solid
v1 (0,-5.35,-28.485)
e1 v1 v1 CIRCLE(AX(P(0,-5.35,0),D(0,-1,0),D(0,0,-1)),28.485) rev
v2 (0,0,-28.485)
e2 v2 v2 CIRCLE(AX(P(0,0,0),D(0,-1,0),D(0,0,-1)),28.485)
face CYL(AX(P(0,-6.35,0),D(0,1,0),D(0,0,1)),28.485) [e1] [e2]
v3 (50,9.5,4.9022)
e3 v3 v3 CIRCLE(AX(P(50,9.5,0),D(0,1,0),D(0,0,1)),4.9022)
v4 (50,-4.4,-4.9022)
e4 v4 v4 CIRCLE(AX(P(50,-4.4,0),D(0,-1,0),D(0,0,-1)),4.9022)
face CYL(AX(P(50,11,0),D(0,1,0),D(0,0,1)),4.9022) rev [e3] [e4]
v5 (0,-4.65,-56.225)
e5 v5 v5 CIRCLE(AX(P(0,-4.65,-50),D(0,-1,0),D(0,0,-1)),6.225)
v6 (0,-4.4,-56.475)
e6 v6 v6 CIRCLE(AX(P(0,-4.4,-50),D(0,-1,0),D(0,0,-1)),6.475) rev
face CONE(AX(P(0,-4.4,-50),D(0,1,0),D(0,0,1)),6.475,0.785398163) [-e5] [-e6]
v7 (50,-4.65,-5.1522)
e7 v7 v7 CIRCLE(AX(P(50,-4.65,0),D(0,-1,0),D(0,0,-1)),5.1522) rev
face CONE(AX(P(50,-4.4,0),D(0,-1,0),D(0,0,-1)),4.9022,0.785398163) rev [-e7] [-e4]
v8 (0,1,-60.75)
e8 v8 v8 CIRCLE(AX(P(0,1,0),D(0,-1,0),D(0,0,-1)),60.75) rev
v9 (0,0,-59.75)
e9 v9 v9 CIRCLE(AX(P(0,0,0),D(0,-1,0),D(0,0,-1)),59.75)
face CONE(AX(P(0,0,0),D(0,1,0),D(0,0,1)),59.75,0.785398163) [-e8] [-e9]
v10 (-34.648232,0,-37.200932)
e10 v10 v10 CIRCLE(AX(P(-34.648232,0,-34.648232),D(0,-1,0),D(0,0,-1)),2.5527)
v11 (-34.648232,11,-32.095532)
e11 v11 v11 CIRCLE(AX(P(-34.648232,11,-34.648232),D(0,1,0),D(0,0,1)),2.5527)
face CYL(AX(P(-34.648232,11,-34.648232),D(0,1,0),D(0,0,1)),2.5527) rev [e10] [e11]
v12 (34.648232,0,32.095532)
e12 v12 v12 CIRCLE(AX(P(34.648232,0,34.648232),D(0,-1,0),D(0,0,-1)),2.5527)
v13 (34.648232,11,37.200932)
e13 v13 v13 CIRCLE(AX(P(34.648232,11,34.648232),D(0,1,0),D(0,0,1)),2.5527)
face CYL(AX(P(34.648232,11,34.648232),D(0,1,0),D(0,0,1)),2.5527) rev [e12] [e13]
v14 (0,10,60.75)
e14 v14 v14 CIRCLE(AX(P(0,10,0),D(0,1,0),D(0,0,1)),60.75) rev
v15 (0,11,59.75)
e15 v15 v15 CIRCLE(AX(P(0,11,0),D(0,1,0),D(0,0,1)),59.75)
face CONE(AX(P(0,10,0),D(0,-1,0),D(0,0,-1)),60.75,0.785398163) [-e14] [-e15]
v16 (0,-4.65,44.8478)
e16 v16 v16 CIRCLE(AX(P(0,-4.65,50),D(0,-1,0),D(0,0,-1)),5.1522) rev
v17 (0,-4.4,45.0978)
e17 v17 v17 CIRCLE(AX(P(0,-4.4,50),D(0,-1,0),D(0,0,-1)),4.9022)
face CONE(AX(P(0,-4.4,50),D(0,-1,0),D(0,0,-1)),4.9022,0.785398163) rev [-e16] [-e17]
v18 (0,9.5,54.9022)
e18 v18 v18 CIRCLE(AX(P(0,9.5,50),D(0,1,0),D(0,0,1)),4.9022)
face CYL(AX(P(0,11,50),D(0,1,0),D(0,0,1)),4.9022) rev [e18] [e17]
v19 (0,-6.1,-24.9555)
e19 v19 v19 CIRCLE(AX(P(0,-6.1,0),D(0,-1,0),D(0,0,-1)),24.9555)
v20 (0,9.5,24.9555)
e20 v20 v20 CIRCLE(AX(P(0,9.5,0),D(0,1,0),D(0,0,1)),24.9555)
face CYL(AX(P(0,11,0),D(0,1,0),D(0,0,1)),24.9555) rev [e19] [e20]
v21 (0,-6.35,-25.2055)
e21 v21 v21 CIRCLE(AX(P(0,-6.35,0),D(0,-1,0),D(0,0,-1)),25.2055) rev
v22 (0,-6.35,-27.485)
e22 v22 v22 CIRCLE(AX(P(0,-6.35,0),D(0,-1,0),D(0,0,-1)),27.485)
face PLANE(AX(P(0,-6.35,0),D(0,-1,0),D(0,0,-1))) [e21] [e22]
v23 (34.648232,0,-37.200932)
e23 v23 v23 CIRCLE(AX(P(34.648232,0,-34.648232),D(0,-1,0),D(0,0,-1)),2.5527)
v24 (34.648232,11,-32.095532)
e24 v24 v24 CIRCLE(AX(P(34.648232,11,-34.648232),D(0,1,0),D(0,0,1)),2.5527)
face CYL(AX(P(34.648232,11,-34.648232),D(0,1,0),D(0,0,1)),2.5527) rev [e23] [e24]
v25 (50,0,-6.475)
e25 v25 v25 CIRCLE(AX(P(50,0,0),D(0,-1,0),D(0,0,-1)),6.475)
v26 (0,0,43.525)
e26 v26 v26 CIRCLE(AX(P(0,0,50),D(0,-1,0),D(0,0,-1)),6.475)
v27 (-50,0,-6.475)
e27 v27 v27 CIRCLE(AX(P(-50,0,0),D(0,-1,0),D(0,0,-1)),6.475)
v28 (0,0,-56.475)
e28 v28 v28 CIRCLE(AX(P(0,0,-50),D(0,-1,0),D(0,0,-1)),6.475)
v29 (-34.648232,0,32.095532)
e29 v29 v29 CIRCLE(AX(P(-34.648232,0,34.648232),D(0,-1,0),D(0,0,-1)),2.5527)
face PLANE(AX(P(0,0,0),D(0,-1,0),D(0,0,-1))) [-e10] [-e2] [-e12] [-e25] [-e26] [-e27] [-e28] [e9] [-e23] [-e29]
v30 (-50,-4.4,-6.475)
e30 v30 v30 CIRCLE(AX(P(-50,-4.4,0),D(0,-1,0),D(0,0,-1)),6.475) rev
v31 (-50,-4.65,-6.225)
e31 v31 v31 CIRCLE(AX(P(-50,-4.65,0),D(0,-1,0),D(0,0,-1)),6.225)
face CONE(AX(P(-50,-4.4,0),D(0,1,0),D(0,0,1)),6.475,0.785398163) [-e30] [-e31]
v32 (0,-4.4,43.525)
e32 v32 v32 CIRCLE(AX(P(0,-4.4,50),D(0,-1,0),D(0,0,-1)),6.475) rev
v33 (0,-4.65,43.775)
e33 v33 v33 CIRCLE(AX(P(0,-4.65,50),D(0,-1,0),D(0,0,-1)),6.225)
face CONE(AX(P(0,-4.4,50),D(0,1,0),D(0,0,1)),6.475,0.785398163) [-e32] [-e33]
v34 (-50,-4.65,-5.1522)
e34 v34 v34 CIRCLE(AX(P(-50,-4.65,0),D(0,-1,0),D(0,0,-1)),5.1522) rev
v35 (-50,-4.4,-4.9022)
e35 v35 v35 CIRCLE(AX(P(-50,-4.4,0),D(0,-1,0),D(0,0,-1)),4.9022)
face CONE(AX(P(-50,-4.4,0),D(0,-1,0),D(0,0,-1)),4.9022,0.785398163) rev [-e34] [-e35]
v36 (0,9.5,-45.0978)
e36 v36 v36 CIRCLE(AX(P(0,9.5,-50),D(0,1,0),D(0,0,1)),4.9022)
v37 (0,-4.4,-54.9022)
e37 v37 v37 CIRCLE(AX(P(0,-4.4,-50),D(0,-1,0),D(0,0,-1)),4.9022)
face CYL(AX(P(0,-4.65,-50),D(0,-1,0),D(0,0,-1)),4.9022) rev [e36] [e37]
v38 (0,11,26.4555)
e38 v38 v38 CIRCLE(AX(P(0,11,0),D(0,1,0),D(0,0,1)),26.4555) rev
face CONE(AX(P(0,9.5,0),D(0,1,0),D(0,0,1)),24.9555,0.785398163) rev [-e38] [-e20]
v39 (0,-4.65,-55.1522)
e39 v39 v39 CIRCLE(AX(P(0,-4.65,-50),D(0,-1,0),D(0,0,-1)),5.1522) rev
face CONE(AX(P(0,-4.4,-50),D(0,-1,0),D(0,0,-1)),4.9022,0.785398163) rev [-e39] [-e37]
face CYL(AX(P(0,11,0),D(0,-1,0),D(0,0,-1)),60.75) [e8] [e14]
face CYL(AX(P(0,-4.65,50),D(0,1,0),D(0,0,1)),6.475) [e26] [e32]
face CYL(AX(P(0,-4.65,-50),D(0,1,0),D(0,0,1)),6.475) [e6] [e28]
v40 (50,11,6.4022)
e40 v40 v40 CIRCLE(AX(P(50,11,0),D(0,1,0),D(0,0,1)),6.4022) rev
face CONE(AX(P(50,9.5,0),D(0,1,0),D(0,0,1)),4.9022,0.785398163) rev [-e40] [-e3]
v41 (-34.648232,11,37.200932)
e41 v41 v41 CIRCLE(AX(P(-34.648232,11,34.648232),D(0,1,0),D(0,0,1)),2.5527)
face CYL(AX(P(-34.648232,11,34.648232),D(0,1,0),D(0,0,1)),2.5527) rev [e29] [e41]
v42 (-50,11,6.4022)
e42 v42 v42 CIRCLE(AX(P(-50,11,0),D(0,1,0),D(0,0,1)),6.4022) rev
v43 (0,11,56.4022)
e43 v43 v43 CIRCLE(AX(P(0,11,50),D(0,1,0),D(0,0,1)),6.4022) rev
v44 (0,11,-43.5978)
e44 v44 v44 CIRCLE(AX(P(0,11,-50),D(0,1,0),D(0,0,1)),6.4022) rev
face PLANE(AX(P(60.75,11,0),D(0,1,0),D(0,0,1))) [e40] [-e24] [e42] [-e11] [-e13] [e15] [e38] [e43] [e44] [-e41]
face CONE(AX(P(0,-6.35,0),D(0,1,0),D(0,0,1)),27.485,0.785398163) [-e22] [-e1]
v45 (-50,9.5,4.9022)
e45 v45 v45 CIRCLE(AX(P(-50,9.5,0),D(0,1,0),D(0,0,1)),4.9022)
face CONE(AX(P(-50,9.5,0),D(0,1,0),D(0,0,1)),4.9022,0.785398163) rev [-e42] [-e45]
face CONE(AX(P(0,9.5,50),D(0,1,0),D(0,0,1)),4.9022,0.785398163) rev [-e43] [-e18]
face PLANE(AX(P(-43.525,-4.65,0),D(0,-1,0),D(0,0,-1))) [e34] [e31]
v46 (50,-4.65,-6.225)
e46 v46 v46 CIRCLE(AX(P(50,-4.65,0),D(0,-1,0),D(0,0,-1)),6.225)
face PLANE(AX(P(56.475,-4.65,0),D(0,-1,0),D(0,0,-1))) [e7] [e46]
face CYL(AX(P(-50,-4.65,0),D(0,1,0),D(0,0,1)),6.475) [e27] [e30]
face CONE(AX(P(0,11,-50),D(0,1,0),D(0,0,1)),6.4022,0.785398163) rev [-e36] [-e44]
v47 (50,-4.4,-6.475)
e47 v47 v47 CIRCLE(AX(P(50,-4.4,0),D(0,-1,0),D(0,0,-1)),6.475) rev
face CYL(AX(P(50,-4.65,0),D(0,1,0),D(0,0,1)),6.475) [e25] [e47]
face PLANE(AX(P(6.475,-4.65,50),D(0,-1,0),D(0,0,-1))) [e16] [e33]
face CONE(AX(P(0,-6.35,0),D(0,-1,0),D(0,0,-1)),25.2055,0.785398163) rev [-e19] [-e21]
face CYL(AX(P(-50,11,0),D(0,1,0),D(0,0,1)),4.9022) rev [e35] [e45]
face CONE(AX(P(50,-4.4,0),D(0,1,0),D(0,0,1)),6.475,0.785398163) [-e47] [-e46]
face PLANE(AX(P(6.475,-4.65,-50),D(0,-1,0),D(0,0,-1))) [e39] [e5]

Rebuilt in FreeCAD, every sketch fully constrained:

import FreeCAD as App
import Part
import Sketcher
Q = App.Units.Quantity


def edges_at(feature, points):
    """Names of the edges that pass closest to the given points."""
    edges = feature.Shape.Edges
    near = lambda p: min(range(len(edges)), key=lambda i: edges[i].distToShape(Part.Vertex(*p))[0])
    return sorted({f"Edge{near(p) + 1}" for p in points})


def add_polygon(sketch, points):
    """Adds a closed chain of lines whose ends are joined by coincident constraints."""
    first, n = sketch.GeometryCount, len(points)
    for a, b in zip(points, points[1:] + points[:1]):
        sketch.addGeometry(Part.LineSegment(App.Vector(*a, 0), App.Vector(*b, 0)), False)
    for i in range(n):
        sketch.addConstraint(Sketcher.Constraint("Coincident", first + i, 2, first + (i + 1) % n, 1))

doc = App.newDocument("Part")
body = doc.addObject("PartDesign::Body", "Body")

sketch1 = doc.addObject("Sketcher::SketchObject", "Sketch")
body.addObject(sketch1)
sketch1.AttachmentSupport = (doc.XY_Plane, [""])
sketch1.MapMode = "FlatFace"
add_polygon(sketch1, [(0, 11), (0, 0), (60.75, 0), (60.75, 11)])
sketch1.addConstraint([
    Sketcher.Constraint("Vertical", 0),
    Sketcher.Constraint("Horizontal", 1),
    Sketcher.Constraint("Vertical", 2),
    Sketcher.Constraint("Horizontal", 3),
    Sketcher.Constraint("Coincident", 0, 2, -1, 1),
    Sketcher.Constraint("DistanceX", 1, 1, 1, 2, 60.75),
    Sketcher.Constraint("DistanceY", 0, 2, 0, 1, 11.0),
])
revolution = doc.addObject("PartDesign::Revolution", "Revolution")
body.addObject(revolution)
revolution.Profile = sketch1
revolution.ReferenceAxis = (sketch1, ["V_Axis"])
revolution.Angle = 360

sketch2 = doc.addObject("Sketcher::SketchObject", "Sketch001")
body.addObject(sketch2)
sketch2.AttachmentSupport = (doc.XZ_Plane, [""])
sketch2.MapMode = "FlatFace"
sketch2.addGeometry(Part.Circle(App.Vector(0, 0, 0), App.Vector(0, 0, 1), 28.485), False)
sketch2.addConstraint([
    Sketcher.Constraint("Coincident", 0, 3, -1, 1),
    Sketcher.Constraint("Diameter", 0, 56.97),
])
pad1 = doc.addObject("PartDesign::Pad", "Pad")
body.addObject(pad1)
pad1.Profile = sketch2
pad1.Length = Q("0.25 in")

sketch3 = doc.addObject("Sketcher::SketchObject", "Sketch002")
body.addObject(sketch3)
sketch3.AttachmentSupport = (doc.XY_Plane, [""])
sketch3.MapMode = "FlatFace"
add_polygon(sketch3, [(-43.525, 0), (-43.525, -4.65), (-50, -4.65), (-50, 0)])
sketch3.addGeometry(Part.LineSegment(App.Vector(-50, -4.65, 0), App.Vector(-50, 0, 0)), True)
sketch3.addConstraint([
    Sketcher.Constraint("Vertical", 0),
    Sketcher.Constraint("Horizontal", 1),
    Sketcher.Constraint("Vertical", 2),
    Sketcher.Constraint("Horizontal", 3),
    Sketcher.Constraint("Vertical", 4),
    Sketcher.Constraint("Coincident", 4, 1, 1, 2),
    Sketcher.Constraint("PointOnObject", 2, 2, -1),
    Sketcher.Constraint("PointOnObject", 4, 2, -1),
    Sketcher.Constraint("DistanceX", 1, 2, 1, 1, 6.475),
    Sketcher.Constraint("DistanceY", 0, 2, 0, 1, 4.65),
    Sketcher.Constraint("DistanceX", 0, 2, -1, 1, 43.525),
])
revolution2 = doc.addObject("PartDesign::Revolution", "Revolution001")
body.addObject(revolution2)
revolution2.Profile = sketch3
revolution2.ReferenceAxis = (sketch3, ["Axis0"])
revolution2.Angle = 360

sketch4 = doc.addObject("Sketcher::SketchObject", "Sketch003")
body.addObject(sketch4)
sketch4.AttachmentSupport = (doc.XY_Plane, [""])
sketch4.MapMode = "FlatFace"
sketch4.AttachmentOffset = App.Placement(App.Vector(0, 0, -50), App.Rotation())
add_polygon(sketch4, [(6.475, 0), (6.475, -4.65), (0, -4.65), (0, 0)])
sketch4.addConstraint([
    Sketcher.Constraint("Vertical", 0),
    Sketcher.Constraint("Horizontal", 1),
    Sketcher.Constraint("Vertical", 2),
    Sketcher.Constraint("Horizontal", 3),
    Sketcher.Constraint("Coincident", 2, 2, -1, 1),
    Sketcher.Constraint("DistanceX", 1, 2, 1, 1, 6.475),
    Sketcher.Constraint("DistanceY", 0, 2, 0, 1, 4.65),
])
revolution3 = doc.addObject("PartDesign::Revolution", "Revolution002")
body.addObject(revolution3)
revolution3.Profile = sketch4
revolution3.ReferenceAxis = (sketch4, ["V_Axis"])
revolution3.Angle = 360

sketch5 = doc.addObject("Sketcher::SketchObject", "Sketch004")
body.addObject(sketch5)
sketch5.AttachmentSupport = (doc.XY_Plane, [""])
sketch5.MapMode = "FlatFace"
add_polygon(sketch5, [(56.475, 0), (56.475, -4.65), (50, -4.65), (50, 0)])
sketch5.addGeometry(Part.LineSegment(App.Vector(50, -4.65, 0), App.Vector(50, 0, 0)), True)
sketch5.addConstraint([
    Sketcher.Constraint("Vertical", 0),
    Sketcher.Constraint("Horizontal", 1),
    Sketcher.Constraint("Vertical", 2),
    Sketcher.Constraint("Horizontal", 3),
    Sketcher.Constraint("Vertical", 4),
    Sketcher.Constraint("Coincident", 4, 1, 1, 2),
    Sketcher.Constraint("PointOnObject", 2, 2, -1),
    Sketcher.Constraint("PointOnObject", 4, 2, -1),
    Sketcher.Constraint("DistanceX", 1, 2, 1, 1, 6.475),
    Sketcher.Constraint("DistanceY", 0, 2, 0, 1, 4.65),
    Sketcher.Constraint("DistanceX", -1, 1, 0, 2, 56.475),
])
revolution4 = doc.addObject("PartDesign::Revolution", "Revolution003")
body.addObject(revolution4)
revolution4.Profile = sketch5
revolution4.ReferenceAxis = (sketch5, ["Axis0"])
revolution4.Angle = 360

sketch6 = doc.addObject("Sketcher::SketchObject", "Sketch005")
body.addObject(sketch6)
sketch6.AttachmentSupport = (doc.XY_Plane, [""])
sketch6.MapMode = "FlatFace"
sketch6.AttachmentOffset = App.Placement(App.Vector(0, 0, 50), App.Rotation())
add_polygon(sketch6, [(6.475, 0), (6.475, -4.65), (0, -4.65), (0, 0)])
sketch6.addConstraint([
    Sketcher.Constraint("Vertical", 0),
    Sketcher.Constraint("Horizontal", 1),
    Sketcher.Constraint("Vertical", 2),
    Sketcher.Constraint("Horizontal", 3),
    Sketcher.Constraint("Coincident", 2, 2, -1, 1),
    Sketcher.Constraint("DistanceX", 1, 2, 1, 1, 6.475),
    Sketcher.Constraint("DistanceY", 0, 2, 0, 1, 4.65),
])
revolution5 = doc.addObject("PartDesign::Revolution", "Revolution004")
body.addObject(revolution5)
revolution5.Profile = sketch6
revolution5.ReferenceAxis = (sketch6, ["V_Axis"])
revolution5.Angle = 360

sketch7 = doc.addObject("Sketcher::SketchObject", "Sketch006")
body.addObject(sketch7)
sketch7.AttachmentSupport = (doc.XZ_Plane, [""])
sketch7.MapMode = "FlatFace"
sketch7.AttachmentOffset = App.Placement(App.Vector(0, 0, -11), App.Rotation())
sketch7.addGeometry([
    Part.Circle(App.Vector(-34.648232, 34.648232, 0), App.Vector(0, 0, 1), 2.5527),
    Part.Circle(App.Vector(34.648232, 34.648232, 0), App.Vector(0, 0, 1), 2.5527),
    Part.Circle(App.Vector(34.648232, -34.648232, 0), App.Vector(0, 0, 1), 2.5527),
    Part.Circle(App.Vector(-34.648232, -34.648232, 0), App.Vector(0, 0, 1), 2.5527),
], False)
sketch7.addConstraint([
    Sketcher.Constraint("Equal", 0, 1),
    Sketcher.Constraint("Equal", 1, 2),
    Sketcher.Constraint("Equal", 2, 3),
    Sketcher.Constraint("Symmetric", 0, 3, 2, 3, -1, 1),
    Sketcher.Constraint("Symmetric", 1, 3, 3, 3, -1, 1),
    Sketcher.Constraint("Symmetric", 0, 3, 1, 3, -2),
    Sketcher.Constraint("Diameter", 0, Q("0.201 in")),
    Sketcher.Constraint("DistanceX", 0, 3, -1, 1, 34.648232),
    Sketcher.Constraint("DistanceY", -1, 1, 0, 3, 34.648232),
])
doc.recompute()
hole = doc.addObject("PartDesign::Hole", "Hole")
body.addObject(hole)
hole.Profile = sketch7
hole.ThreadType = "None"
hole.Diameter = Q("0.201 in")
hole.DepthType = "Dimension"
hole.Depth = 17.35
hole.DrillPoint = "Flat"
hole.Reversed = True

sketch8 = doc.addObject("Sketcher::SketchObject", "Sketch007")
body.addObject(sketch8)
sketch8.AttachmentSupport = (doc.XZ_Plane, [""])
sketch8.MapMode = "FlatFace"
sketch8.AttachmentOffset = App.Placement(App.Vector(0, 0, -11), App.Rotation())
sketch8.addGeometry([
    Part.Circle(App.Vector(50, 0, 0), App.Vector(0, 0, 1), 4.9022),
    Part.Circle(App.Vector(0, 50, 0), App.Vector(0, 0, 1), 4.9022),
    Part.Circle(App.Vector(-50, 0, 0), App.Vector(0, 0, 1), 4.9022),
], False)
sketch8.addConstraint([
    Sketcher.Constraint("Equal", 0, 1),
    Sketcher.Constraint("Equal", 1, 2),
    Sketcher.Constraint("Symmetric", 0, 3, 2, 3, -1, 1),
    Sketcher.Constraint("PointOnObject", 0, 3, -1),
    Sketcher.Constraint("PointOnObject", 1, 3, -2),
    Sketcher.Constraint("Diameter", 0, Q("0.386 in")),
    Sketcher.Constraint("DistanceX", -1, 1, 0, 3, 50.0),
    Sketcher.Constraint("DistanceY", -1, 1, 1, 3, 50.0),
])
doc.recompute()
hole2 = doc.addObject("PartDesign::Hole", "Hole001")
body.addObject(hole2)
hole2.Profile = sketch8
hole2.ThreadType = "None"
hole2.Diameter = Q("0.386 in")
hole2.DepthType = "Dimension"
hole2.Depth = 17.35
hole2.DrillPoint = "Flat"
hole2.Reversed = True

sketch9 = doc.addObject("Sketcher::SketchObject", "Sketch008")
body.addObject(sketch9)
sketch9.AttachmentSupport = (doc.XZ_Plane, [""])
sketch9.MapMode = "FlatFace"
sketch9.AttachmentOffset = App.Placement(App.Vector(0, 0, -11), App.Rotation())
sketch9.addGeometry(Part.Circle(App.Vector(0, 0, 0), App.Vector(0, 0, 1), 24.9555), False)
sketch9.addConstraint([
    Sketcher.Constraint("Coincident", 0, 3, -1, 1),
    Sketcher.Constraint("Diameter", 0, Q("1.965 in")),
])
doc.recompute()
hole3 = doc.addObject("PartDesign::Hole", "Hole002")
body.addObject(hole3)
hole3.Profile = sketch9
hole3.ThreadType = "None"
hole3.Diameter = Q("1.965 in")
hole3.DepthType = "ThroughAll"
hole3.Reversed = True

sketch10 = doc.addObject("Sketcher::SketchObject", "Sketch009")
body.addObject(sketch10)
sketch10.AttachmentSupport = (doc.XZ_Plane, [""])
sketch10.MapMode = "FlatFace"
sketch10.AttachmentOffset = App.Placement(App.Vector(0, 0, 4.65), App.Rotation())
sketch10.addGeometry(Part.Circle(App.Vector(0, -50, 0), App.Vector(0, 0, 1), 4.9022), False)
sketch10.addConstraint([
    Sketcher.Constraint("PointOnObject", 0, 3, -2),
    Sketcher.Constraint("Diameter", 0, Q("0.386 in")),
    Sketcher.Constraint("DistanceY", 0, 3, -1, 1, 50.0),
])
doc.recompute()
hole4 = doc.addObject("PartDesign::Hole", "Hole003")
body.addObject(hole4)
hole4.Profile = sketch10
hole4.ThreadType = "None"
hole4.Diameter = Q("0.386 in")
hole4.DepthType = "ThroughAll"
doc.recompute()

chamfer = doc.addObject("PartDesign::Chamfer", "Chamfer")
body.addObject(chamfer)
chamfer.Base = (hole4, edges_at(hole4, [
    (-50, -4.65, -6.475),
    (0, -4.65, -56.475),
    (50, -4.65, -6.475),
    (0, -4.65, 43.525),
    (-45.098, -4.65, 0),
    (4.902, -4.65, 50),
    (54.902, -4.65, 0),
    (24.956, -6.35, 0),
    (-4.902, -4.65, -50),
]))
chamfer.Size = 0.25
doc.recompute()

chamfer2 = doc.addObject("PartDesign::Chamfer", "Chamfer001")
body.addObject(chamfer2)
chamfer2.Base = (chamfer, edges_at(chamfer, [(0, -6.35, 28.485), (0, 0, 60.75), (0, 11, 60.75)]))
chamfer2.Size = 1
doc.recompute()

chamfer3 = doc.addObject("PartDesign::Chamfer", "Chamfer002")
body.addObject(chamfer3)
chamfer3.Base = (chamfer2, edges_at(chamfer2, [
    (-45.098, 11, 0),
    (4.902, 11, 50),
    (54.902, 11, 0),
    (24.956, 11, 0),
    (-4.902, 11, -50),
]))
chamfer3.Size = 1.5

doc.recompute()
